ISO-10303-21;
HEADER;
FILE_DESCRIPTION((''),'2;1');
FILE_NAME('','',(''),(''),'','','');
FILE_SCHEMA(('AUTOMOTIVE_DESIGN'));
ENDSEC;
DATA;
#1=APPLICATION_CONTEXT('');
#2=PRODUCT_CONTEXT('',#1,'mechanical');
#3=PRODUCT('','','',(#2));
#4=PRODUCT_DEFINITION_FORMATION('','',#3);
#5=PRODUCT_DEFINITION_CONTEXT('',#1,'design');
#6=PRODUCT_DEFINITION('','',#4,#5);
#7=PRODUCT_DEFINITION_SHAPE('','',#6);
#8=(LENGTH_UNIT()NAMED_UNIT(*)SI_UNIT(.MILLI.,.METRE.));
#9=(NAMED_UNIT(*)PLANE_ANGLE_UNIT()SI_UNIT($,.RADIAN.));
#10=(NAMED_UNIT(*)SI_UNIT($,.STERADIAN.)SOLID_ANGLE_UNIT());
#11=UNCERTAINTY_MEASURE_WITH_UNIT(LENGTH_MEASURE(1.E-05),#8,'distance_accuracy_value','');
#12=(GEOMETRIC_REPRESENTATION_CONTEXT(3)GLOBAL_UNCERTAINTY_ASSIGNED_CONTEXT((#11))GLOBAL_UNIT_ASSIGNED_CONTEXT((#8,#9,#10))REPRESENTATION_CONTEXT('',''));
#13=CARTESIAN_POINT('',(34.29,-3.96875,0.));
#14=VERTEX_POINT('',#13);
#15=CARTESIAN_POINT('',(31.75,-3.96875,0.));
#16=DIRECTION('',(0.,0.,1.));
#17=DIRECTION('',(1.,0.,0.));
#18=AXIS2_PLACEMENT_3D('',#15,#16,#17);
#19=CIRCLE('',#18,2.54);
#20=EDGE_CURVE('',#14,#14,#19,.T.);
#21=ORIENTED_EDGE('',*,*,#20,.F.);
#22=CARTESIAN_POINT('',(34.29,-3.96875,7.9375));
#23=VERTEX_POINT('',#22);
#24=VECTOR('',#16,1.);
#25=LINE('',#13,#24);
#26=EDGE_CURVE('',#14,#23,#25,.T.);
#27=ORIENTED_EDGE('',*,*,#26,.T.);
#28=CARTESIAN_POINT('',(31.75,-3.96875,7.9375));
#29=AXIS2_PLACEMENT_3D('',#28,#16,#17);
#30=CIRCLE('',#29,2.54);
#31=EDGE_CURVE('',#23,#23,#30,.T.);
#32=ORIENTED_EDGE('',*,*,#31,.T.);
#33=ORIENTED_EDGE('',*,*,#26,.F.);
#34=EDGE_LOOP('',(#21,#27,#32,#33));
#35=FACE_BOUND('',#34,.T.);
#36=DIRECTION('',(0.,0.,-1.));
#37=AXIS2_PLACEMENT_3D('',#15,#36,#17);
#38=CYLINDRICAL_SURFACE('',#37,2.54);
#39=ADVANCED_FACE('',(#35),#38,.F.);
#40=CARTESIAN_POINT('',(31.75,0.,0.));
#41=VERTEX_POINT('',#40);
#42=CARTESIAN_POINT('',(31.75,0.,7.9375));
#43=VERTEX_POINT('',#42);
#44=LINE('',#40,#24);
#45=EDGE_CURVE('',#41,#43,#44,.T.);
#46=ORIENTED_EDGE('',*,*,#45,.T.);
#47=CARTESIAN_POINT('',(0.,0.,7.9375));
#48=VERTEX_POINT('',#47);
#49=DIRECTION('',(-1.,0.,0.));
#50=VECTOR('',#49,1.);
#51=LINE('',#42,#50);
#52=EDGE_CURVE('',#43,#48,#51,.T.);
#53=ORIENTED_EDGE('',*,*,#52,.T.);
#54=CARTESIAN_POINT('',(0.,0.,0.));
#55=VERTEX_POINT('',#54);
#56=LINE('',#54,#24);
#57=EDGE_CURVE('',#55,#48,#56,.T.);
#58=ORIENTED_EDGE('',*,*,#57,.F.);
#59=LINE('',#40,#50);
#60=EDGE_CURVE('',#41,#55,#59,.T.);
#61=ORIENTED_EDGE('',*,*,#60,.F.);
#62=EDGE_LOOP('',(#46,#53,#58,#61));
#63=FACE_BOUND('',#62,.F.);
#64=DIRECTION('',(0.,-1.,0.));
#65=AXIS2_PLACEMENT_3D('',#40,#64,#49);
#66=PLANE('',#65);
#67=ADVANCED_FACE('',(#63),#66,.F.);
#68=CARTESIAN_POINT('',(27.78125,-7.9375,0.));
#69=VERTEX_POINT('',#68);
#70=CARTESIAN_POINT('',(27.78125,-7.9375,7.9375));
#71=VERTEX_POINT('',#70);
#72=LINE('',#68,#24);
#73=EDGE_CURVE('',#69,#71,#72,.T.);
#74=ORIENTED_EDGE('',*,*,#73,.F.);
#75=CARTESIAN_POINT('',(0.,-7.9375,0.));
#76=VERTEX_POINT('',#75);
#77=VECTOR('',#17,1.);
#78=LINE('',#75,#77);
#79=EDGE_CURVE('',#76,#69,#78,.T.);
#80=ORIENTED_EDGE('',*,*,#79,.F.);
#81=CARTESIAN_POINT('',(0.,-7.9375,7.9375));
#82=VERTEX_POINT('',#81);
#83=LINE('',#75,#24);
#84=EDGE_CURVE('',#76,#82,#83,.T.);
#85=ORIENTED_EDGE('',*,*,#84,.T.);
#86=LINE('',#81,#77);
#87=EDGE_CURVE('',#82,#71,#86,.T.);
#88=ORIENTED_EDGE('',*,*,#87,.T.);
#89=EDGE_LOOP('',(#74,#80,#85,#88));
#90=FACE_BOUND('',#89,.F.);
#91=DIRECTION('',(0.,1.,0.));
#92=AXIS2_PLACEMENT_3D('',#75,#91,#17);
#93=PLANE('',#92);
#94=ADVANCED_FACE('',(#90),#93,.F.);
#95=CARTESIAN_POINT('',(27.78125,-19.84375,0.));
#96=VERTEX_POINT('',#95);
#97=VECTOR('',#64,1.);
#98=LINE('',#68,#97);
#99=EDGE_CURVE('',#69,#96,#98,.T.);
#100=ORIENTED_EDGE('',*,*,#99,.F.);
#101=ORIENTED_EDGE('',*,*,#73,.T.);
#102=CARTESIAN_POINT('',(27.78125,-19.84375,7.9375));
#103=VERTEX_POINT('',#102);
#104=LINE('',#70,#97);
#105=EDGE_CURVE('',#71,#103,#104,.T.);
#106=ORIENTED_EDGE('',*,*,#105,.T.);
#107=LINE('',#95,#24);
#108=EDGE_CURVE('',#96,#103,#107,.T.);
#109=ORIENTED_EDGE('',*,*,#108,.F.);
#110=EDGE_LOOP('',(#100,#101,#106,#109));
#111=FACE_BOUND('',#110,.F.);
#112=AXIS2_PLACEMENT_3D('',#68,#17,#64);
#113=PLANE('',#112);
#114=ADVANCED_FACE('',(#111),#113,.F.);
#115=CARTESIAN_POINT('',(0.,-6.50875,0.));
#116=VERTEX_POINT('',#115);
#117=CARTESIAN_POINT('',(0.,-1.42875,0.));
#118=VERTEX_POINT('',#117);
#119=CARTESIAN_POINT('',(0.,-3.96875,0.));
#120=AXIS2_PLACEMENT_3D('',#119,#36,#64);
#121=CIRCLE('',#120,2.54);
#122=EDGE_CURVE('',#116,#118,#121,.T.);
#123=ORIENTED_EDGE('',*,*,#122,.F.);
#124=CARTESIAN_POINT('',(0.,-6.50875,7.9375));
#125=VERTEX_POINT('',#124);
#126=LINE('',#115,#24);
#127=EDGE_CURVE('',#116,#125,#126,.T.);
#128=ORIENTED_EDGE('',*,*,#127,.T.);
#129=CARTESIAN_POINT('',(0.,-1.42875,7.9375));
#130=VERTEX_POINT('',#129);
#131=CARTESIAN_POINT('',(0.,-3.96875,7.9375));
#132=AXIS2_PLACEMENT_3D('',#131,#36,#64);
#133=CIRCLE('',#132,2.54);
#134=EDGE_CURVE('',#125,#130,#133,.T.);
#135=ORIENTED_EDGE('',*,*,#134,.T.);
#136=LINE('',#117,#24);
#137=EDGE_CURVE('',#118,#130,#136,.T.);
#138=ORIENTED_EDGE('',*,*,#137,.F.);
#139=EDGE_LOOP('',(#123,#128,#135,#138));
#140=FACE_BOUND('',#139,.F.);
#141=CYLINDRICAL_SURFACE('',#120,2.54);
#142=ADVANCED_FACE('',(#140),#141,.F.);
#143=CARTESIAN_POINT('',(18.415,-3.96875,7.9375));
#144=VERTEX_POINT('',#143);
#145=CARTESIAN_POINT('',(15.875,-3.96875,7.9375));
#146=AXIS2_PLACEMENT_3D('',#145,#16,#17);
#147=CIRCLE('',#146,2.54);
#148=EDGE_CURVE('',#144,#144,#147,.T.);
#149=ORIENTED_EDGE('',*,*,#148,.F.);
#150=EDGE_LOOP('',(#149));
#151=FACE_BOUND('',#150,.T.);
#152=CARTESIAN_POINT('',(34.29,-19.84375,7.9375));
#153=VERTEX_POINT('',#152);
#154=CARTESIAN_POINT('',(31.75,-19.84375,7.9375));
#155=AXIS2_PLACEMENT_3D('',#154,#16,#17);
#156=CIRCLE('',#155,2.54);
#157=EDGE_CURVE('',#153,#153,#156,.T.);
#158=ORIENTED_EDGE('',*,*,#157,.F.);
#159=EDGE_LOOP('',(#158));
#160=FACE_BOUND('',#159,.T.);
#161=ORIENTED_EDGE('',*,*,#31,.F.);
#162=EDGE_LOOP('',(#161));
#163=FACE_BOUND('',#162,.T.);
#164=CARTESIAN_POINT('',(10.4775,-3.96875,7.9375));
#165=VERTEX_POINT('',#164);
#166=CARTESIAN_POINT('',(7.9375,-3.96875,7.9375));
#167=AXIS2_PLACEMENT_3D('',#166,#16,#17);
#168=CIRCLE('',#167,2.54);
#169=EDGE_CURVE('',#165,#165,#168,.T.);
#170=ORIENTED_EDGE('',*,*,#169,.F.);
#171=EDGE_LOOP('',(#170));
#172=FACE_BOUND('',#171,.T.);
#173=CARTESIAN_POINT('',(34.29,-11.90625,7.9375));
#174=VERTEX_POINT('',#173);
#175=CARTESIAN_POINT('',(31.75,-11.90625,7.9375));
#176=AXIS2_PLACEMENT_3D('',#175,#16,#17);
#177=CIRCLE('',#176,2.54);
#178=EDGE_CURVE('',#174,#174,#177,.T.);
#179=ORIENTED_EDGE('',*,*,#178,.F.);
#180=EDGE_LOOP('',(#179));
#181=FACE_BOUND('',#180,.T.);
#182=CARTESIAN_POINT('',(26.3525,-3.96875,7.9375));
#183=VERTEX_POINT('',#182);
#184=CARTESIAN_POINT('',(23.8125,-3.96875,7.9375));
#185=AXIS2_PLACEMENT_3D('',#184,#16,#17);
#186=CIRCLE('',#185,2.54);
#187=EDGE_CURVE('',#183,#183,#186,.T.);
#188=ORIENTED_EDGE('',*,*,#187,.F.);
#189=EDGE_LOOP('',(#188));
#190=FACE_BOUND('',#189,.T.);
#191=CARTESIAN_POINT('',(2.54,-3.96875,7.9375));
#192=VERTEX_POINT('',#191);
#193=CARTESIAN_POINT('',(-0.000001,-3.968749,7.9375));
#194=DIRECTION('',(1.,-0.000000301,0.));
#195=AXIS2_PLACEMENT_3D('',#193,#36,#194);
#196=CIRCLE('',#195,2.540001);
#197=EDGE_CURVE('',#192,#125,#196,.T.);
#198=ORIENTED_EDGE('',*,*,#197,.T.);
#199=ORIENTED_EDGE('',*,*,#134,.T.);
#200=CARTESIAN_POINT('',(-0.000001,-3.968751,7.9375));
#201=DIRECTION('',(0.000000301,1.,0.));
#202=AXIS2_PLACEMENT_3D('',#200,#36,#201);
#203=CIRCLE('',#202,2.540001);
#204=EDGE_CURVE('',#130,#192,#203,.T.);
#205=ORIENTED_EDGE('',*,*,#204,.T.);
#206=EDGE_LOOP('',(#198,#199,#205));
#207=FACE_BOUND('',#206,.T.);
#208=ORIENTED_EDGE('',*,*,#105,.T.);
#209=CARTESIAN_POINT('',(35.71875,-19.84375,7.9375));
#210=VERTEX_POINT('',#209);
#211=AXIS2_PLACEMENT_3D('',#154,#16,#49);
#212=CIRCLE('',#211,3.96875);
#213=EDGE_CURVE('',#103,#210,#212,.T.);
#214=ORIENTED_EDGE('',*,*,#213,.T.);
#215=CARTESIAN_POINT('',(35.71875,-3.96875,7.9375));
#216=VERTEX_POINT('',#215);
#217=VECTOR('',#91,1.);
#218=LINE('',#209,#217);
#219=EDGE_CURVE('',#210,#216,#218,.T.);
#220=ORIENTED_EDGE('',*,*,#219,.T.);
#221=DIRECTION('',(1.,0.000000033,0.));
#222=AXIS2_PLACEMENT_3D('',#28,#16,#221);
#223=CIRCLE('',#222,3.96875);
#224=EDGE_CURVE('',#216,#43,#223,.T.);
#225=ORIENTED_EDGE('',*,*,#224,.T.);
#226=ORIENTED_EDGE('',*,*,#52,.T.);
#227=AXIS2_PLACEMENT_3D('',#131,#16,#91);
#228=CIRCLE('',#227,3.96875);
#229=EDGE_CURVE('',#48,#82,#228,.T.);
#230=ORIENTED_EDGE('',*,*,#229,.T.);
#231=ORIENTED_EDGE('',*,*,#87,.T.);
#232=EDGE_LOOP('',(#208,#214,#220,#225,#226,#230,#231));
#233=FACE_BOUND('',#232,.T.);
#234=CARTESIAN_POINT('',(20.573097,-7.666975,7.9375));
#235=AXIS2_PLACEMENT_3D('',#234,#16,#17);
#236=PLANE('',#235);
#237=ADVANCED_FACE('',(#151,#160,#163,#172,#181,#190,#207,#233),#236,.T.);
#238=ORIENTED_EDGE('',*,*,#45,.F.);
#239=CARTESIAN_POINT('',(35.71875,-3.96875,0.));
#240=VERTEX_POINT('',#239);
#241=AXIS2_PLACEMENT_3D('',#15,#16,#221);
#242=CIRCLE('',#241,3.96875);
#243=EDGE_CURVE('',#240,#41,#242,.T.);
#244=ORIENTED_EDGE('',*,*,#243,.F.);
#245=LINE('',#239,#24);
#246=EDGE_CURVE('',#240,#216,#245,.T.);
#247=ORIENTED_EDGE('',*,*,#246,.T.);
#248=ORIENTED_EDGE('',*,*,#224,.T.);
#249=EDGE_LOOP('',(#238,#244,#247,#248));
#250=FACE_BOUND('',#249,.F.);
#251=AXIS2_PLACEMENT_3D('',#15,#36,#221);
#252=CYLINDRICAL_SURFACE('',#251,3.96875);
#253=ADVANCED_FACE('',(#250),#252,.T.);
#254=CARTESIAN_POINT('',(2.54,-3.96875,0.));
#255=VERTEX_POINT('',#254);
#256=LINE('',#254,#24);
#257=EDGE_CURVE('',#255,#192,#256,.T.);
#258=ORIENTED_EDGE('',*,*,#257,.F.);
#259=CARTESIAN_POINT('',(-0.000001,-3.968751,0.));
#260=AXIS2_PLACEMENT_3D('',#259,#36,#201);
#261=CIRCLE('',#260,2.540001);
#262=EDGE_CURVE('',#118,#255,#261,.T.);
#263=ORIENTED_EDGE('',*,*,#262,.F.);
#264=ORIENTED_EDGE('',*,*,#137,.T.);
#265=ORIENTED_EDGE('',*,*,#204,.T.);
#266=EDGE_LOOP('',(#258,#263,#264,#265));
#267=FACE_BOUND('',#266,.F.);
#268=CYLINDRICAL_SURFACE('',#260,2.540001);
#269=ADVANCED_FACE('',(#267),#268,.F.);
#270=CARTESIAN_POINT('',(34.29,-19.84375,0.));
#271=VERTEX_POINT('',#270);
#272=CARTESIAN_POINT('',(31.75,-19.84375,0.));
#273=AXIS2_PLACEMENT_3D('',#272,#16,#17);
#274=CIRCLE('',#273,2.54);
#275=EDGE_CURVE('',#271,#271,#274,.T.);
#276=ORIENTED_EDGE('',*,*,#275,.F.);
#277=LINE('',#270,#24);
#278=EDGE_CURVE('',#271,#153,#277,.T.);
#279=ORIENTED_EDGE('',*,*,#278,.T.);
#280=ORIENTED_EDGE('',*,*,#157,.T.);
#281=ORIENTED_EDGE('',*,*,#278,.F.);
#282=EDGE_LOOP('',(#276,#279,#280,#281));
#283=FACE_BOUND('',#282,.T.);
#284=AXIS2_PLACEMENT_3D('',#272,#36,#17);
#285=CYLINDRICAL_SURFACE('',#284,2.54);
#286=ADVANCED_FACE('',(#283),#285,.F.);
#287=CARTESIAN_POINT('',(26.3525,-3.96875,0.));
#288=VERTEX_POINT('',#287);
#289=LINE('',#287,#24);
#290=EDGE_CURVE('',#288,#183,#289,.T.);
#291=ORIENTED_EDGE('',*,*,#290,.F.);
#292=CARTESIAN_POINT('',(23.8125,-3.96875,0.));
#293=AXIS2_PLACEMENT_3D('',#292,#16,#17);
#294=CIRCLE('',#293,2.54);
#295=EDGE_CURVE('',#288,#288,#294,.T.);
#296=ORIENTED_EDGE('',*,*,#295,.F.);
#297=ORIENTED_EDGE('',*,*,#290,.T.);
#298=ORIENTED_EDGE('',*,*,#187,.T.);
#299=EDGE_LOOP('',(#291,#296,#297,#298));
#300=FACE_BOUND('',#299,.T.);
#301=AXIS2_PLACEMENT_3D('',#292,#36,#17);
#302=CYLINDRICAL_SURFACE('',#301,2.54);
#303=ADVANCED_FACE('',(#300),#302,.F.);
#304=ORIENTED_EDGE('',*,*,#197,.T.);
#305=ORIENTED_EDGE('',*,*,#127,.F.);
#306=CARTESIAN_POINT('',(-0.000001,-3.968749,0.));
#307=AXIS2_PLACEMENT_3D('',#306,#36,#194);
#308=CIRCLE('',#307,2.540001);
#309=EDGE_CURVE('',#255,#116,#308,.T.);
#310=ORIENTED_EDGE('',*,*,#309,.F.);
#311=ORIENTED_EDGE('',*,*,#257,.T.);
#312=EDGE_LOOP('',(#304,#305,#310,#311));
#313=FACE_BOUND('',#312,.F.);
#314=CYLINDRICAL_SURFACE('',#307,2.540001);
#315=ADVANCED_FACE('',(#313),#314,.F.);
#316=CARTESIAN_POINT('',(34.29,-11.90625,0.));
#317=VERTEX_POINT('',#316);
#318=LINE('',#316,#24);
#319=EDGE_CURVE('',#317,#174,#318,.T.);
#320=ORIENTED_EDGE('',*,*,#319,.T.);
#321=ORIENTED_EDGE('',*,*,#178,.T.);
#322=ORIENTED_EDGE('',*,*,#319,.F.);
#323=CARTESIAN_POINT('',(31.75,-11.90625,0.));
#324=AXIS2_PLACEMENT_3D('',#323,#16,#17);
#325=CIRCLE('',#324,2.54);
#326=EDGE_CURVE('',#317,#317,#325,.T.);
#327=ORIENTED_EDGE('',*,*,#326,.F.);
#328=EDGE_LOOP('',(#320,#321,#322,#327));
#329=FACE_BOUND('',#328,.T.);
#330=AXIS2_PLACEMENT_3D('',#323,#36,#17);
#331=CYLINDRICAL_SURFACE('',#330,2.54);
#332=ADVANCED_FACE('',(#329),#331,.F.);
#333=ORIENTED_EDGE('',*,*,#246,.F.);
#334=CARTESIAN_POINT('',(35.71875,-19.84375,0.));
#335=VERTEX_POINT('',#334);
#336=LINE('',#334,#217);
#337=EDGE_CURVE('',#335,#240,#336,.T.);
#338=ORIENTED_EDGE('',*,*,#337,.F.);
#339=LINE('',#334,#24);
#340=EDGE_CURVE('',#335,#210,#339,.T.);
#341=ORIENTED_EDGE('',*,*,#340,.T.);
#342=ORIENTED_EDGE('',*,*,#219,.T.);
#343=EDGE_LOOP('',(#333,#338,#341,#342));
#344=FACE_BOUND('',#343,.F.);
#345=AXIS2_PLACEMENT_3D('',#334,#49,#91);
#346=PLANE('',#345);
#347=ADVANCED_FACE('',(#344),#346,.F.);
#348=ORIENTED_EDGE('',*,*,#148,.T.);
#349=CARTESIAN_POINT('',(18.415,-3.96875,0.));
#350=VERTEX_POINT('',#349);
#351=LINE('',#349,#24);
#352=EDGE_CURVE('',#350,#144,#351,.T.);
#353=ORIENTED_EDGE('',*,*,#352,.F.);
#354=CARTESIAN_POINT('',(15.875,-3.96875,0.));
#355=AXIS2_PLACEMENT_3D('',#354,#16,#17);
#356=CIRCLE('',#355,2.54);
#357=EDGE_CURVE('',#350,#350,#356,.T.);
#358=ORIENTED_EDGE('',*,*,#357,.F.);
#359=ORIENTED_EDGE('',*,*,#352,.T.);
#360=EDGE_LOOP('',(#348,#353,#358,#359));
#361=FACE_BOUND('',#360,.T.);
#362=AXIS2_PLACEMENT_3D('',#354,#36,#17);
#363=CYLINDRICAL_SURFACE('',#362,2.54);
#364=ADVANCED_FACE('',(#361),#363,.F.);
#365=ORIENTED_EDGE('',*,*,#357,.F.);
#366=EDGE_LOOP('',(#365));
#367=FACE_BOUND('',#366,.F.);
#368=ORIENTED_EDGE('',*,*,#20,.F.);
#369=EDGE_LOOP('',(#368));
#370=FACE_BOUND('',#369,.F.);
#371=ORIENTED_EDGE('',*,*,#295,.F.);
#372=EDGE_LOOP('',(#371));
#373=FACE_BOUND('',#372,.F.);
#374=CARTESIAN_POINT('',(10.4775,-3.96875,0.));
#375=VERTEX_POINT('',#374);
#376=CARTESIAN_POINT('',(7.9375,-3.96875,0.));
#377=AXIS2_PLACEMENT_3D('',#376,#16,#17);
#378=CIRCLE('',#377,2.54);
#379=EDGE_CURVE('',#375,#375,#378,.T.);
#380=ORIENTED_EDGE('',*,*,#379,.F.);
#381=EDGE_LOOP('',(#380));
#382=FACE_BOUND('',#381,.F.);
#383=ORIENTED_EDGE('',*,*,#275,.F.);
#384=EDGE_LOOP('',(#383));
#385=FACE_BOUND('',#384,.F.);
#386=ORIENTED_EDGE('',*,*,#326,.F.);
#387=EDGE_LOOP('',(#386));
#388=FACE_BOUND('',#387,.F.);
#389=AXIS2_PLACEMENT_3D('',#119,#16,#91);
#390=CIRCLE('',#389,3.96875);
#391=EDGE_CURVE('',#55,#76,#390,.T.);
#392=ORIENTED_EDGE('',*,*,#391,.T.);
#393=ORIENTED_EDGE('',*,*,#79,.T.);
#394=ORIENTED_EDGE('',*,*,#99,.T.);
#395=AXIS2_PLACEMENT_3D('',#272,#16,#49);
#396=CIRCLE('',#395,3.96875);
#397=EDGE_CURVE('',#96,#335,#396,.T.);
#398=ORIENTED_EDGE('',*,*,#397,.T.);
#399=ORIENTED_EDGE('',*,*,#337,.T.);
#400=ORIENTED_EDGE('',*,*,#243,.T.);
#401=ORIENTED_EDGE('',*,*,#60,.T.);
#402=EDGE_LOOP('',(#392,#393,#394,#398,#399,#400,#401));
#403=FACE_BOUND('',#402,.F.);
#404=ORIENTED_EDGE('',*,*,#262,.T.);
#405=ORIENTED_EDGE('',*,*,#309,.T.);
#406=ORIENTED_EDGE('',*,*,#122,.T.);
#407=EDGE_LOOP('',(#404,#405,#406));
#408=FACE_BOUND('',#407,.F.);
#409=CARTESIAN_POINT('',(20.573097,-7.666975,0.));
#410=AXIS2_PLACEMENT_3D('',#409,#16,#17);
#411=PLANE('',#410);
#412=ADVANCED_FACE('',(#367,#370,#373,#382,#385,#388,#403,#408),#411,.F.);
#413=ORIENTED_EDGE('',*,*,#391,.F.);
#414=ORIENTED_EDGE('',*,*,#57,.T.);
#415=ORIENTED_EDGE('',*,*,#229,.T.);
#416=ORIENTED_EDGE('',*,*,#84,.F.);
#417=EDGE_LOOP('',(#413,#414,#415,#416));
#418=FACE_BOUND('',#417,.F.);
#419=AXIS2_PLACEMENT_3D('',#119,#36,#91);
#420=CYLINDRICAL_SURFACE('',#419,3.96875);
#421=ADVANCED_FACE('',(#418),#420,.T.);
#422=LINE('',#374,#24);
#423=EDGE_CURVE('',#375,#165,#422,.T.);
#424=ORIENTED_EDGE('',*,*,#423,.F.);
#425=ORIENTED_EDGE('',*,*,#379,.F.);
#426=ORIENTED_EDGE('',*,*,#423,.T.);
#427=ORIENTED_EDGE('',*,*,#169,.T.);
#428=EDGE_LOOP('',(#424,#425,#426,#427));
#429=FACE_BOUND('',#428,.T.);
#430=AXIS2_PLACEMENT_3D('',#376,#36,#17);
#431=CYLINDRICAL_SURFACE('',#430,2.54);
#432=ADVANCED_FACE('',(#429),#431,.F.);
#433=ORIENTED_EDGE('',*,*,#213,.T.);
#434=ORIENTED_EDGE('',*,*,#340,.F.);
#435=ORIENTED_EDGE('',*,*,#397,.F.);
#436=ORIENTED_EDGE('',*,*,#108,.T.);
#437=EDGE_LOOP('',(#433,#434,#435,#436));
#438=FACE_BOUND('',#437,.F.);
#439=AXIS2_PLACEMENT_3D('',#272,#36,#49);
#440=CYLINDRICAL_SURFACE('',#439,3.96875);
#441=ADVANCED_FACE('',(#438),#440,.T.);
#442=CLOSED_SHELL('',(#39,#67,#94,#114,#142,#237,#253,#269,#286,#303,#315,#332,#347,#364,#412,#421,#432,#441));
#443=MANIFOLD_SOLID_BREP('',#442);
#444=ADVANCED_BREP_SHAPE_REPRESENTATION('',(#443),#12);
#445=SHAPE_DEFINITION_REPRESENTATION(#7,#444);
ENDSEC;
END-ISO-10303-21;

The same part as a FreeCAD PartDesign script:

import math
import FreeCAD as App
import Part
import Sketcher
from FreeCAD import Vector
Q = App.Units.Quantity

doc = App.newDocument("Part")
body = doc.addObject("PartDesign::Body", "Body")

# Sketch on XY plane
sketch1 = doc.addObject("Sketcher::SketchObject", "Sketch")
body.addObject(sketch1)
sketch1.AttachmentSupport = (doc.XY_Plane, [""])
sketch1.MapMode = "FlatFace"
sketch1.addGeometry(Part.LineSegment(Vector(31.8, 0, 0), Vector(0, 0, 0)), False)
sketch1.addGeometry(Part.ArcOfCircle(Part.Circle(Vector(0, -4, 0), Vector(0, 0, 1), 4), math.radians(90), math.radians(270)), False)
sketch1.addGeometry(Part.LineSegment(Vector(0, -7.9, 0), Vector(27.8, -7.9, 0)), False)
sketch1.addGeometry(Part.LineSegment(Vector(27.8, -7.9, 0), Vector(27.8, -19.8, 0)), False)
sketch1.addGeometry(Part.ArcOfCircle(Part.Circle(Vector(31.8, -19.8, 0), Vector(0, 0, 1), 4), math.radians(180), math.radians(360)), False)
sketch1.addGeometry(Part.LineSegment(Vector(35.7, -19.8, 0), Vector(35.7, -4, 0)), False)
sketch1.addGeometry(Part.ArcOfCircle(Part.Circle(Vector(31.7, -4, 0), Vector(0, 0, 1), 4), math.radians(0), math.radians(90)), False)
sketch1.addGeometry(Part.ArcOfCircle(Part.Circle(Vector(0, -4, 0), Vector(0, 0, 1), 2.5), math.radians(0), math.radians(90)), False)
sketch1.addGeometry(Part.ArcOfCircle(Part.Circle(Vector(0, -4, 0), Vector(0, 0, 1), 2.5), math.radians(-90), math.radians(0)), False)
sketch1.addGeometry(Part.ArcOfCircle(Part.Circle(Vector(0, -4, 0), Vector(0, 0, 1), 2.5), math.radians(90), math.radians(270)), False)
sketch1.addGeometry(Part.Circle(Vector(31.8, -19.8, 0), Vector(0, 0, 1), 2.5), False)
sketch1.addGeometry(Part.Circle(Vector(7.9, -4, 0), Vector(0, 0, 1), 2.5), False)
sketch1.addGeometry(Part.Circle(Vector(15.9, -4, 0), Vector(0, 0, 1), 2.5), False)
sketch1.addGeometry(Part.Circle(Vector(31.8, -11.9, 0), Vector(0, 0, 1), 2.5), False)
sketch1.addGeometry(Part.Circle(Vector(23.8, -4, 0), Vector(0, 0, 1), 2.5), False)
sketch1.addGeometry(Part.Circle(Vector(31.8, -4, 0), Vector(0, 0, 1), 2.5), False)
sketch1.addConstraint(Sketcher.Constraint("Tangent", 0, 2, 1, 1))
sketch1.addConstraint(Sketcher.Constraint("Tangent", 1, 2, 2, 1))
sketch1.addConstraint(Sketcher.Constraint("Coincident", 2, 2, 3, 1))
sketch1.addConstraint(Sketcher.Constraint("Tangent", 3, 2, 4, 1))
sketch1.addConstraint(Sketcher.Constraint("Tangent", 4, 2, 5, 1))
sketch1.addConstraint(Sketcher.Constraint("Tangent", 5, 2, 6, 1))
sketch1.addConstraint(Sketcher.Constraint("Tangent", 6, 2, 0, 1))
sketch1.addConstraint(Sketcher.Constraint("Tangent", 7, 1, 8, 2))
sketch1.addConstraint(Sketcher.Constraint("Tangent", 8, 1, 9, 2))
sketch1.addConstraint(Sketcher.Constraint("Tangent", 9, 1, 7, 2))
sketch1.addConstraint(Sketcher.Constraint("Horizontal", 0))
sketch1.addConstraint(Sketcher.Constraint("Horizontal", 2))
sketch1.addConstraint(Sketcher.Constraint("Vertical", 3))
sketch1.addConstraint(Sketcher.Constraint("Vertical", 5))
sketch1.addConstraint(Sketcher.Constraint("Coincident", 0, 2, -1, 1))
sketch1.addConstraint(Sketcher.Constraint("Coincident", 7, 3, 1, 3))
sketch1.addConstraint(Sketcher.Constraint("Coincident", 10, 3, 4, 3))
sketch1.addConstraint(Sketcher.Constraint("Coincident", 15, 3, 6, 3))
sketch1.addConstraint(Sketcher.Constraint("Equal", 1, 4))
sketch1.addConstraint(Sketcher.Constraint("Equal", 4, 6))
sketch1.addConstraint(Sketcher.Constraint("Equal", 9, 10))
sketch1.addConstraint(Sketcher.Constraint("Equal", 10, 11))
sketch1.addConstraint(Sketcher.Constraint("Equal", 11, 12))
sketch1.addConstraint(Sketcher.Constraint("Equal", 12, 13))
sketch1.addConstraint(Sketcher.Constraint("Equal", 13, 14))
sketch1.addConstraint(Sketcher.Constraint("Equal", 14, 15))
sketch1.addConstraint(Sketcher.Constraint("PointOnObject", 8, 1, -2))
sketch1.addConstraint(Sketcher.Constraint("PointOnObject", 9, 1, -2))
sketch1.addConstraint(Sketcher.Constraint("Horizontal", 9, 3, 11, 3))
sketch1.addConstraint(Sketcher.Constraint("Horizontal", 11, 3, 12, 3))
sketch1.addConstraint(Sketcher.Constraint("Horizontal", 12, 3, 14, 3))
sketch1.addConstraint(Sketcher.Constraint("Horizontal", 5, 2, 7, 1))
sketch1.addConstraint(Sketcher.Constraint("Vertical", 10, 3, 13, 3))
sketch1.addConstraint(Sketcher.Constraint("Diameter", 10, Q("0.2 in")))
sketch1.addConstraint(Sketcher.Constraint("Radius", 1, Q("0.15625 in")))
sketch1.addConstraint(Sketcher.Constraint("DistanceX", 0, 2, 0, 1, Q("1.25 in")))
sketch1.addConstraint(Sketcher.Constraint("DistanceY", 3, 2, 3, 1, Q("0.46875 in")))
sketch1.addConstraint(Sketcher.Constraint("DistanceX", -1, 1, 11, 3, Q("0.3125 in")))
sketch1.addConstraint(Sketcher.Constraint("DistanceX", -1, 1, 12, 3, Q("0.625 in")))
sketch1.addConstraint(Sketcher.Constraint("DistanceY", 13, 3, -1, 1, Q("0.46875 in")))
sketch1.addConstraint(Sketcher.Constraint("DistanceX", -1, 1, 14, 3, Q("0.9375 in")))
pad1 = doc.addObject("PartDesign::Pad", "Pad")
body.addObject(pad1)
pad1.Profile = sketch1
pad1.Length = Q("0.3125 in")

doc.recompute()
